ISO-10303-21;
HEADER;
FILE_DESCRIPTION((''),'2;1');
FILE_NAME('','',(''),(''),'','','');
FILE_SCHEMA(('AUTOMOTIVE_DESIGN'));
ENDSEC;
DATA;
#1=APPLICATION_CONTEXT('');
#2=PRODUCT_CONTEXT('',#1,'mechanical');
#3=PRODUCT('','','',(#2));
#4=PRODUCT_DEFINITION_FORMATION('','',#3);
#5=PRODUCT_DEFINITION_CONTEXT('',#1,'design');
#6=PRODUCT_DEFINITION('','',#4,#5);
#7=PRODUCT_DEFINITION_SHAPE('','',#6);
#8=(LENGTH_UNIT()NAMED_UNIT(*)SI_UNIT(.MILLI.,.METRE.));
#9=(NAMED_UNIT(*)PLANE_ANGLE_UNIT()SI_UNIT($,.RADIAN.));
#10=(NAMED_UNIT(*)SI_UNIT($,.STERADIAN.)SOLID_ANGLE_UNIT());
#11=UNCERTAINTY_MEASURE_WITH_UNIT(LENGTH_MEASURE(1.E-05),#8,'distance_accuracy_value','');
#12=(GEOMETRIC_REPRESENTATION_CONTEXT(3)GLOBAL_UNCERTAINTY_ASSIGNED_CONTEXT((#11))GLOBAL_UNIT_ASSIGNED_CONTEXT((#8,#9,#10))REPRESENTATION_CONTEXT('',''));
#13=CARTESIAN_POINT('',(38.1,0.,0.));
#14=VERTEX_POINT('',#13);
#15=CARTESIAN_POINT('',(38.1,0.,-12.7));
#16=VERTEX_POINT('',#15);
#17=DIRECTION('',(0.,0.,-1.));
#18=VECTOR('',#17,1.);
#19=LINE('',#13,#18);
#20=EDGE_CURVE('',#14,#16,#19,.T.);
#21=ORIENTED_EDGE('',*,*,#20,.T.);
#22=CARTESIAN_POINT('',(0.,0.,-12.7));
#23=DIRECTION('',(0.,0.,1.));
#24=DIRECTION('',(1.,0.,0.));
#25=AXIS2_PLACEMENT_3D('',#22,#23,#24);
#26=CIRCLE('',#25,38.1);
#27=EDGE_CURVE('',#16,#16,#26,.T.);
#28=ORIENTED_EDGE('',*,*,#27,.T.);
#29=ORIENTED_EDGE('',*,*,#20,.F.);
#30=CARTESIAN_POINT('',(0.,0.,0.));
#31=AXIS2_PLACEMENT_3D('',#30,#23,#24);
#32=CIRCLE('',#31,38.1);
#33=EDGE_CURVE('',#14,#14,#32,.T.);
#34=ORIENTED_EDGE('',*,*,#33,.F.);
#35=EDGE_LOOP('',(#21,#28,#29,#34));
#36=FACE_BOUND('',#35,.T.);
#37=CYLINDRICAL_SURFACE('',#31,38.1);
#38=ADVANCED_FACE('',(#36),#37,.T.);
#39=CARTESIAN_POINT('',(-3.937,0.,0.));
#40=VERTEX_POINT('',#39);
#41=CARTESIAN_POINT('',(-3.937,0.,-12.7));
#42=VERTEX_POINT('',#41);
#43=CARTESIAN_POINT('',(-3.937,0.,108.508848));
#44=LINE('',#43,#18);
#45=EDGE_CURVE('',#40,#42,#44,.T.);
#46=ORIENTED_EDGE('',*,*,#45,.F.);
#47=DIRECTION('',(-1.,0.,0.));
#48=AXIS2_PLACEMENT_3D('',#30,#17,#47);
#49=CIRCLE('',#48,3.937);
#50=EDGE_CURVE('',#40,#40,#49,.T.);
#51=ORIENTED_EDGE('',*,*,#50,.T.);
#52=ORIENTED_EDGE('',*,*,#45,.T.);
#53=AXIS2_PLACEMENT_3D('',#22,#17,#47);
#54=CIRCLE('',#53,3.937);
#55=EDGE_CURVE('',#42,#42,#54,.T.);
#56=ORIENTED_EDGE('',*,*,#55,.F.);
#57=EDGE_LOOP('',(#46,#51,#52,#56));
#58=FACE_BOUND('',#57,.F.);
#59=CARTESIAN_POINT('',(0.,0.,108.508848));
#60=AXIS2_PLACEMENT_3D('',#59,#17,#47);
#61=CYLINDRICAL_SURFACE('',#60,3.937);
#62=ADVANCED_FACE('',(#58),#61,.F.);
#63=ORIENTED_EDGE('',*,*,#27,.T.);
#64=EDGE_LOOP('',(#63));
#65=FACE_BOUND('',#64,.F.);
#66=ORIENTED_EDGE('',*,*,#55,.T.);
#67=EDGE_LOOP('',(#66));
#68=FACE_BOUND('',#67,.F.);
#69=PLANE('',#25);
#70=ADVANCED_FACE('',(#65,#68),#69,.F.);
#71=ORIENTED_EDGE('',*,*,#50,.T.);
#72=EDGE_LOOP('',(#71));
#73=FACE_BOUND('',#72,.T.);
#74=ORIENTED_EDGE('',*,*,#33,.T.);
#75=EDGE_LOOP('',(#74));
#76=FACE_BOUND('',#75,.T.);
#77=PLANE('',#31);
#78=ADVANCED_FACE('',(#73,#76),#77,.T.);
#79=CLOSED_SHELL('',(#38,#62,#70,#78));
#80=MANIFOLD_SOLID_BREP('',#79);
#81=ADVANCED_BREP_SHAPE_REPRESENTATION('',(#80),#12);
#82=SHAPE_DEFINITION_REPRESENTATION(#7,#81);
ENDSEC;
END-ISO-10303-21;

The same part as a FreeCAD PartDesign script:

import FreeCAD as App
import Part
import Sketcher

V = App.Vector
Q = App.Units.Quantity

doc = App.newDocument("Part")
body = doc.addObject("PartDesign::Body", "Body")

sketch1 = body.newObject("Sketcher::SketchObject", "Sketch")
sketch1.AttachmentSupport = (doc.getObject("XY_Plane"), [""])
sketch1.MapMode = "FlatFace"
sketch1.addGeometry(Part.Circle(V(0, 0, 0), V(0, 0, 1), 38), False)
sketch1.addConstraint([
    Sketcher.Constraint("Coincident", 0, 3, -1, 1),
    Sketcher.Constraint("Diameter", 0, Q("3 in")),
])
pad1 = body.newObject("PartDesign::Pad", "Pad")
pad1.Profile = sketch1
pad1.Length = Q("0.5 in")
pad1.Reversed = True

sketch2 = body.newObject("Sketcher::SketchObject", "Sketch001")
sketch2.AttachmentSupport = (doc.getObject("XY_Plane"), [""])
sketch2.MapMode = "FlatFace"
sketch2.addGeometry(Part.Circle(V(0, 0, 0), V(0, 0, 1), 3.9), False)
sketch2.addConstraint([
    Sketcher.Constraint("Coincident", 0, 3, -1, 1),
    Sketcher.Constraint("Diameter", 0, Q("0.31 in")),
])
doc.recompute()
hole = body.newObject("PartDesign::Hole", "Hole")
hole.Profile = sketch2
hole.ThreadType = "None"
hole.Diameter = Q("0.31 in")
hole.DepthType = "ThroughAll"

doc.recompute()
